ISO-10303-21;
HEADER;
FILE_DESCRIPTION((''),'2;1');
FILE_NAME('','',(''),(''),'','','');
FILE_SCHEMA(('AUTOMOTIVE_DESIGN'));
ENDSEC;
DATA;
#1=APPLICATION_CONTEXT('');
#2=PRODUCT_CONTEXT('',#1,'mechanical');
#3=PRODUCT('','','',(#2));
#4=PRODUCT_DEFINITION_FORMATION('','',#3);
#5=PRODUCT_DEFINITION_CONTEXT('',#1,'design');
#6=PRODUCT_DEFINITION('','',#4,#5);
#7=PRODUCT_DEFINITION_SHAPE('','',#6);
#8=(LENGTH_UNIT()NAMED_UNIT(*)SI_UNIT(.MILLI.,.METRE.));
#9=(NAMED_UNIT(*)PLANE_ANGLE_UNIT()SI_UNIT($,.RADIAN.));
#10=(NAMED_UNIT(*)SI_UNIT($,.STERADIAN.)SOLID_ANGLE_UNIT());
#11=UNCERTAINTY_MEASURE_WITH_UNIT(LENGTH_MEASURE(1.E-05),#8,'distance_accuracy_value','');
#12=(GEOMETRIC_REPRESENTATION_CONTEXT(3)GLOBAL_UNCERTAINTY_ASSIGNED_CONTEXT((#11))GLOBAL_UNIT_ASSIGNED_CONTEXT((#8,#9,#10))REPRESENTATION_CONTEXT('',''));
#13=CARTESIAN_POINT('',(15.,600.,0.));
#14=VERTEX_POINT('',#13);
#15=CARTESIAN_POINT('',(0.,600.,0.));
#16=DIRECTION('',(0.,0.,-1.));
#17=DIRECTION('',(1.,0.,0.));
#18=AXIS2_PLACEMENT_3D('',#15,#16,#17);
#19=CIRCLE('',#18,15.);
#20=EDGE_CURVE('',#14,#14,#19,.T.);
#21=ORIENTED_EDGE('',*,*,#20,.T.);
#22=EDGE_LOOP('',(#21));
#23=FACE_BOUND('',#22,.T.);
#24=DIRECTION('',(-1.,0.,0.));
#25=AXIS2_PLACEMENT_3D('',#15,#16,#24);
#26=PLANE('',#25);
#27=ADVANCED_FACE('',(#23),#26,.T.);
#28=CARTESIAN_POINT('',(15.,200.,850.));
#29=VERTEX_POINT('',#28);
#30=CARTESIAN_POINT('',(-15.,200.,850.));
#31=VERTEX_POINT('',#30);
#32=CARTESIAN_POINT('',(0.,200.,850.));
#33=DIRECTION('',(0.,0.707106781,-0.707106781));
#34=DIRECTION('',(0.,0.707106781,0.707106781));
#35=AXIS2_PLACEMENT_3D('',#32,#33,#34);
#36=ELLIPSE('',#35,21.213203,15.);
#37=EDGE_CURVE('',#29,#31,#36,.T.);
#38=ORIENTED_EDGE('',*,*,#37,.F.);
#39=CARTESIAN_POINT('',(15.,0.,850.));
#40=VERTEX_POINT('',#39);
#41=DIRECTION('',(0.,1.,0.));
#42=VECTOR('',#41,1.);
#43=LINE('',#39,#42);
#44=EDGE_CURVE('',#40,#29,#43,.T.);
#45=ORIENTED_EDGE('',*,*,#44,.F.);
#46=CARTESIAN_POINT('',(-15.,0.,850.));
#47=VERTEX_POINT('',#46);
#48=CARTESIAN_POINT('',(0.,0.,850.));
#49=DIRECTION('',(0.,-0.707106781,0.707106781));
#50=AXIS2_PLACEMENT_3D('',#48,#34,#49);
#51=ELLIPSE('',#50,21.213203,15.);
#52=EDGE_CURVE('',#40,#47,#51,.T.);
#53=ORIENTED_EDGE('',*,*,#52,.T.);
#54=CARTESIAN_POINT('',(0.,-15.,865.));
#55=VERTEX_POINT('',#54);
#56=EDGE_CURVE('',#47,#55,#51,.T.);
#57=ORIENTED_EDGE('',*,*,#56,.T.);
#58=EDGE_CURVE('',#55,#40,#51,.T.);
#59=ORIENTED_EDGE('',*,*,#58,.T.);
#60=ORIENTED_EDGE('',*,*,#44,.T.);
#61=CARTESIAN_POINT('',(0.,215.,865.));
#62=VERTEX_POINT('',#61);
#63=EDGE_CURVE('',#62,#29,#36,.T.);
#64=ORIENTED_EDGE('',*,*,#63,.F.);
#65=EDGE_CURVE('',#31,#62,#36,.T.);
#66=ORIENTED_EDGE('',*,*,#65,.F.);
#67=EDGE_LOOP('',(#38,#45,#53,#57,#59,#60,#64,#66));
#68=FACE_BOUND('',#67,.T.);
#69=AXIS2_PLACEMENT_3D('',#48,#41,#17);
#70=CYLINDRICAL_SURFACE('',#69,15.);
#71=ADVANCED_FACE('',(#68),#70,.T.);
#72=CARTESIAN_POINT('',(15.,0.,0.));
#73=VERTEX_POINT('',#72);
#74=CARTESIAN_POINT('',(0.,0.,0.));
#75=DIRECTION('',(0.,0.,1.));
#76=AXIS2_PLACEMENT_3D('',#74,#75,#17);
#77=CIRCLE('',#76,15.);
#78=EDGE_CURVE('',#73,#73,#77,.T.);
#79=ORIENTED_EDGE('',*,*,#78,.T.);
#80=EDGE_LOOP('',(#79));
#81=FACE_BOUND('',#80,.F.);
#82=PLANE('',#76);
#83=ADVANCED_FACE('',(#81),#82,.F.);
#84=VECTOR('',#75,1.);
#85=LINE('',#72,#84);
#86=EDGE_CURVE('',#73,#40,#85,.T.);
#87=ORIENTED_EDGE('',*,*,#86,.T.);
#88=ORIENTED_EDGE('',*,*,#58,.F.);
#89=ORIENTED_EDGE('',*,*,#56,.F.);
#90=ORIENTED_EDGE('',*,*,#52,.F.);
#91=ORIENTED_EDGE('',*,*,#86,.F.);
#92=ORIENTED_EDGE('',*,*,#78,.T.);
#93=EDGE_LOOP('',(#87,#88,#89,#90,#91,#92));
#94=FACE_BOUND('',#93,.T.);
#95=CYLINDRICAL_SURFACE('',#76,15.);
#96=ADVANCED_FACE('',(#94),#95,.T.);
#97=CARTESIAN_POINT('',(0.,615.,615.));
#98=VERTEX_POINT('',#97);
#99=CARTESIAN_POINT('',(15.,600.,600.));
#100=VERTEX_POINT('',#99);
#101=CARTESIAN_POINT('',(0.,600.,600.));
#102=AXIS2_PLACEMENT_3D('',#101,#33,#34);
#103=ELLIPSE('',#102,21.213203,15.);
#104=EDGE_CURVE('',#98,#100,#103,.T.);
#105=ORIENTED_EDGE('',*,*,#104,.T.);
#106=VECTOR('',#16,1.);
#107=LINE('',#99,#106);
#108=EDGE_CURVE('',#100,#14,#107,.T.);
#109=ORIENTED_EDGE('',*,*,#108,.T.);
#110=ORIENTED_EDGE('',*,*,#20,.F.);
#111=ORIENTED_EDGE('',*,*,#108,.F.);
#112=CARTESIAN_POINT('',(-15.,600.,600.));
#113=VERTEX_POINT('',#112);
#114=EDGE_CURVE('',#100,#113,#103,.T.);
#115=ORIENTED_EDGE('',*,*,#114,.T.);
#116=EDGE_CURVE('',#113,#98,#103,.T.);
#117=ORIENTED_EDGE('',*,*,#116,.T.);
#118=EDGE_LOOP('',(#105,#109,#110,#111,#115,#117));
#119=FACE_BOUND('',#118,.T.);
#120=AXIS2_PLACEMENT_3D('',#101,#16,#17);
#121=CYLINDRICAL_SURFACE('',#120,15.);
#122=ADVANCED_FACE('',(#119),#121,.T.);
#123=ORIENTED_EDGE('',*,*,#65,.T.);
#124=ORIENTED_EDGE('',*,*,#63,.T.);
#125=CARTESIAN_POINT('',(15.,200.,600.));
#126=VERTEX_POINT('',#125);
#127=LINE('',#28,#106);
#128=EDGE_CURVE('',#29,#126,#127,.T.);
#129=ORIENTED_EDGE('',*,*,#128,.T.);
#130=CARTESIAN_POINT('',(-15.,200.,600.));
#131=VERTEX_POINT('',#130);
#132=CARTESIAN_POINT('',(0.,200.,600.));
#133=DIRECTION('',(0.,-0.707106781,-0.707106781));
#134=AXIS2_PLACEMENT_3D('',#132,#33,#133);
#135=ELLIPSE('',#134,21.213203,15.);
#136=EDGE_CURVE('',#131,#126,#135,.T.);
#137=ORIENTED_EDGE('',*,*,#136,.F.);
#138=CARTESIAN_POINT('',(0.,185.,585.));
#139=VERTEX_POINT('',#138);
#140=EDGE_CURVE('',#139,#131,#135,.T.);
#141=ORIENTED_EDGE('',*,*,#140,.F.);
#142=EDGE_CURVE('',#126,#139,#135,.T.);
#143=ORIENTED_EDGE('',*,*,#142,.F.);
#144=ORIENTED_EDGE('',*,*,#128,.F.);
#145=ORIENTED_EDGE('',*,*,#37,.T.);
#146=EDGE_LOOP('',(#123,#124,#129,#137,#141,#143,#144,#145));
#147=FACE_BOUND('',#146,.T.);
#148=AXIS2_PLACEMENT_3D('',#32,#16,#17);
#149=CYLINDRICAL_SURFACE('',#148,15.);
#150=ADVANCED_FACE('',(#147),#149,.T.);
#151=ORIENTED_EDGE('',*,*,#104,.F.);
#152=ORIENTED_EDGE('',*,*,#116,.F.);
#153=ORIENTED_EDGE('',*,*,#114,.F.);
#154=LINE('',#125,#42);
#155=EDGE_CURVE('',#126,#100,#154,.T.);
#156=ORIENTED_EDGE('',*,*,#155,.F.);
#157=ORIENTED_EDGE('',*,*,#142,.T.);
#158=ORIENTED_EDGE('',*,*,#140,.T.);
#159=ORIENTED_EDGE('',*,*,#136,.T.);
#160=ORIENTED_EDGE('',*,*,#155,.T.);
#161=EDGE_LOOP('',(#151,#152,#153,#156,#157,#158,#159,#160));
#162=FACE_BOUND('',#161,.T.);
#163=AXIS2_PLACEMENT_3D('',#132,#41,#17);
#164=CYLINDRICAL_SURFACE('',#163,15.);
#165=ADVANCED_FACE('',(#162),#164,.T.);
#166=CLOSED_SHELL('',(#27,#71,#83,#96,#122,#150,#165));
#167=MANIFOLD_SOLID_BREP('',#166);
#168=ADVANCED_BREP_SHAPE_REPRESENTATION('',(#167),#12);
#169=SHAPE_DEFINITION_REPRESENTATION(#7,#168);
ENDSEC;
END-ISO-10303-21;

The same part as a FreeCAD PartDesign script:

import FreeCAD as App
import Part
import Sketcher

V = App.Vector

doc = App.newDocument("Part")
params = doc.addObject("Spreadsheet::Sheet", "Params")
for row, (alias, value) in enumerate([
    ("sketch1_diameter", "30 mm"),
    ("sketch2_width", "200 mm"),
    ("sketch2_width2", "400 mm"),
    ("sketch2_height", "850 mm"),
    ("sketch2_height2", "250 mm"),
], start=1):
    params.set(f"A{row}", alias)
    params.set(f"B{row}", "=" + value)
    params.setAlias(f"B{row}", alias)

body = doc.addObject("PartDesign::Body", "Body")

sketch1 = doc.addObject("Sketcher::SketchObject", "Sketch")
body.addObject(sketch1)
sketch1.AttachmentSupport = (doc.XY_Plane, [""])
sketch1.MapMode = "FlatFace"
sketch1.addGeometry(Part.Circle(V(0, 0, 0), V(0, 0, 1), 15), False)
sketch1.addConstraint(Sketcher.Constraint("Coincident", 0, 3, -1, 1))
sketch1.addConstraint(Sketcher.Constraint("Diameter", 0, 30.0))
sketch1.setExpression("Constraints[1]", "Params.sketch1_diameter")

sketch2 = doc.addObject("Sketcher::SketchObject", "Sketch001")
body.addObject(sketch2)
sketch2.AttachmentSupport = (doc.YZ_Plane, [""])
sketch2.MapMode = "FlatFace"
sketch2.addGeometry(Part.LineSegment(V(0, 0, 0), V(0, 850, 0)), False)
sketch2.addGeometry(Part.LineSegment(V(0, 850, 0), V(200, 850, 0)), False)
sketch2.addGeometry(Part.LineSegment(V(200, 850, 0), V(200, 600, 0)), False)
sketch2.addGeometry(Part.LineSegment(V(200, 600, 0), V(600, 600, 0)), False)
sketch2.addGeometry(Part.LineSegment(V(600, 600, 0), V(600, 0, 0)), False)
sketch2.addConstraint(Sketcher.Constraint("Coincident", 0, 2, 1, 1))
sketch2.addConstraint(Sketcher.Constraint("Coincident", 1, 2, 2, 1))
sketch2.addConstraint(Sketcher.Constraint("Coincident", 2, 2, 3, 1))
sketch2.addConstraint(Sketcher.Constraint("Coincident", 3, 2, 4, 1))
sketch2.addConstraint(Sketcher.Constraint("Vertical", 0))
sketch2.addConstraint(Sketcher.Constraint("Horizontal", 1))
sketch2.addConstraint(Sketcher.Constraint("Vertical", 2))
sketch2.addConstraint(Sketcher.Constraint("Horizontal", 3))
sketch2.addConstraint(Sketcher.Constraint("Vertical", 4))
sketch2.addConstraint(Sketcher.Constraint("Coincident", 0, 1, -1, 1))
sketch2.addConstraint(Sketcher.Constraint("PointOnObject", 4, 2, -1))
sketch2.addConstraint(Sketcher.Constraint("DistanceX", 1, 1, 1, 2, 200.0))
sketch2.addConstraint(Sketcher.Constraint("DistanceX", 3, 1, 3, 2, 400.0))
sketch2.addConstraint(Sketcher.Constraint("DistanceY", 0, 1, 0, 2, 850.0))
sketch2.addConstraint(Sketcher.Constraint("DistanceY", 2, 2, 2, 1, 250.0))
sketch2.setExpression("Constraints[11]", "Params.sketch2_width")
sketch2.setExpression("Constraints[12]", "Params.sketch2_width2")
sketch2.setExpression("Constraints[13]", "Params.sketch2_height")
sketch2.setExpression("Constraints[14]", "Params.sketch2_height2")
doc.recompute()

additivepipe = doc.addObject("PartDesign::AdditivePipe", "AdditivePipe")
body.addObject(additivepipe)
additivepipe.Profile = sketch1
additivepipe.Spine = (sketch2, ["Edge1", "Edge2", "Edge3", "Edge4", "Edge5"])
additivepipe.Transition = "Right corner"

doc.recompute()
